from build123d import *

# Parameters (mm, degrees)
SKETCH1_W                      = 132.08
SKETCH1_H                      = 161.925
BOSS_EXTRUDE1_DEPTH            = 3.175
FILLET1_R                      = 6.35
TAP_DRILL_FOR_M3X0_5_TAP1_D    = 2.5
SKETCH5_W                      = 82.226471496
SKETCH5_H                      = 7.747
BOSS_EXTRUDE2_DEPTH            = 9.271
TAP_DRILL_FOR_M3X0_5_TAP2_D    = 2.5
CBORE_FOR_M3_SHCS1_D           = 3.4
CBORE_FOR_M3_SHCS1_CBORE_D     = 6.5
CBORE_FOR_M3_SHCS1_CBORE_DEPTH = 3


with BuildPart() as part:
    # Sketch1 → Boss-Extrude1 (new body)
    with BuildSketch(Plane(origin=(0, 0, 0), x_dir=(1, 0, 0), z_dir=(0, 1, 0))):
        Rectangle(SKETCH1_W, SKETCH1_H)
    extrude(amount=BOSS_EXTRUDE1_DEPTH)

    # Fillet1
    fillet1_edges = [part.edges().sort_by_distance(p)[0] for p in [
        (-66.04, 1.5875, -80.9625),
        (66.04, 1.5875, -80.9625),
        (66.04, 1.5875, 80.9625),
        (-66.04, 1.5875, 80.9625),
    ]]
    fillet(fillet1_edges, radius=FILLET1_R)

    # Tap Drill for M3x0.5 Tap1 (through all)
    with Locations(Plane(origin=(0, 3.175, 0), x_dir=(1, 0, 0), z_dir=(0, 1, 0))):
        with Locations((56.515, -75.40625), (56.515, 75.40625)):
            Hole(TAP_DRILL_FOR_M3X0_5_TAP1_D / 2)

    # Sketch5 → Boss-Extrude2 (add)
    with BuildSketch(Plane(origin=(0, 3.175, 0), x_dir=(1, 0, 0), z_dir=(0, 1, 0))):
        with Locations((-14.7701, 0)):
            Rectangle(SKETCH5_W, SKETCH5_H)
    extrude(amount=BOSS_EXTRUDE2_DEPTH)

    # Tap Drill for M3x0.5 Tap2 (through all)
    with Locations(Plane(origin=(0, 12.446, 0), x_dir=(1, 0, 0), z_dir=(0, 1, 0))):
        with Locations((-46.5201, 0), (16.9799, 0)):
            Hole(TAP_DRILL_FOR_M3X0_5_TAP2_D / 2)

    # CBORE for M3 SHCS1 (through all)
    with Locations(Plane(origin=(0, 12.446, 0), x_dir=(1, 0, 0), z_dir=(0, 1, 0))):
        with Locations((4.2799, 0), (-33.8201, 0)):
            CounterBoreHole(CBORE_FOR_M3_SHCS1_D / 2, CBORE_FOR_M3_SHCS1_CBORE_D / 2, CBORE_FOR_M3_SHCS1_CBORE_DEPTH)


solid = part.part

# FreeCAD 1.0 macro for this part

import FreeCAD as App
import Part
import Sketcher
from FreeCAD import Vector
Q = App.Units.Quantity


def edges_at(feature, points):
    """Names of the edges that pass closest to the given points."""
    edges = feature.Shape.Edges
    near = lambda p: min(range(len(edges)), key=lambda i: edges[i].distToShape(Part.Vertex(*p))[0])
    return sorted({f"Edge{near(p) + 1}" for p in points})


def add_polygon(sketch, points):
    """Adds a closed chain of lines whose ends are joined by coincident constraints."""
    first, n = sketch.GeometryCount, len(points)
    for a, b in zip(points, points[1:] + points[:1]):
        sketch.addGeometry(Part.LineSegment(App.Vector(*a, 0), App.Vector(*b, 0)), False)
    for i in range(n):
        sketch.addConstraint(Sketcher.Constraint("Coincident", first + i, 2, first + (i + 1) % n, 1))

doc = App.newDocument("Part")
body = doc.addObject("PartDesign::Body", "Body")

# Sketch on XZ plane
sketch1 = body.newObject("Sketcher::SketchObject", "Sketch")
sketch1.AttachmentSupport = (doc.getObject("XZ_Plane"), [""])
sketch1.MapMode = "FlatFace"
add_polygon(sketch1, [(-66, -81), (-66, 81), (66, 81), (66, -81)])  # lines 0-3
sketch1.addConstraint([
    Sketcher.Constraint("Vertical", 0),
    Sketcher.Constraint("Horizontal", 1),
    Sketcher.Constraint("Vertical", 2),
    Sketcher.Constraint("Horizontal", 3),
    Sketcher.Constraint("Symmetric", 0, 2, 2, 2, -1, 1),
    Sketcher.Constraint("DistanceX", 1, 1, 1, 2, Q("5.2 in")),
    Sketcher.Constraint("DistanceY", 0, 1, 0, 2, Q("6.375 in")),
])
pad1 = body.newObject("PartDesign::Pad", "Pad")
pad1.Profile = sketch1
pad1.Length = Q("0.125 in")
pad1.Reversed = True
doc.recompute()

fillet = body.newObject("PartDesign::Fillet", "Fillet")
fillet.Base = (pad1, edges_at(pad1, [
    (-66.04, 1.587, -80.963),
    (66.04, 1.587, -80.963),
    (66.04, 1.587, 80.963),
    (-66.04, 1.587, 80.963),
]))
fillet.Radius = Q("0.25 in")

# Sketch on XZ plane
sketch2 = body.newObject("Sketcher::SketchObject", "Sketch001")
sketch2.AttachmentSupport = (doc.getObject("XZ_Plane"), [""])
sketch2.MapMode = "FlatFace"
sketch2.AttachmentOffset = App.Placement(Vector(0, 0, -0.125 * 25.4), App.Rotation())
sketch2.addGeometry([
    Part.Circle(Vector(56.5, 75.4, 0), Vector(0, 0, 1), 1.2),
    Part.Circle(Vector(56.5, -75.4, 0), Vector(0, 0, 1), 1.2),
], False)
sketch2.addConstraint([
    Sketcher.Constraint("Equal", 0, 1),
    Sketcher.Constraint("Symmetric", 0, 3, 1, 3, -1),
    Sketcher.Constraint("Diameter", 0, 2.5),
    Sketcher.Constraint("DistanceX", -1, 1, 0, 3, Q("2.225 in")),
    Sketcher.Constraint("DistanceY", -1, 1, 0, 3, Q("2.96875 in")),
])
doc.recompute()
hole = body.newObject("PartDesign::Hole", "Hole")
hole.Profile = sketch2
hole.ThreadType = "None"
hole.Diameter = 2.5
hole.DepthType = "ThroughAll"
hole.Reversed = True

# Sketch on XZ plane
sketch3 = body.newObject("Sketcher::SketchObject", "Sketch002")
sketch3.AttachmentSupport = (doc.getObject("XZ_Plane"), [""])
sketch3.MapMode = "FlatFace"
sketch3.AttachmentOffset = App.Placement(Vector(0, 0, -0.125 * 25.4), App.Rotation())
add_polygon(sketch3, [(-56, -4), (-56, 4), (26, 4), (26, -4)])  # lines 0-3
sketch3.addConstraint([
    Sketcher.Constraint("Vertical", 0),
    Sketcher.Constraint("Horizontal", 1),
    Sketcher.Constraint("Vertical", 2),
    Sketcher.Constraint("Horizontal", 3),
    Sketcher.Constraint("DistanceY", 0, 1, 0, 2, Q("0.305 in")),
    Sketcher.Constraint("DistanceY", -1, 1, 0, 2, Q("0.1525 in")),
    Sketcher.Constraint("DistanceX", 1, 1, 1, 2, 82.226471),
    Sketcher.Constraint("DistanceX", 0, 2, -1, 1, 55.883336),
])
pad2 = body.newObject("PartDesign::Pad", "Pad001")
pad2.Profile = sketch3
pad2.Length = Q("0.365 in")
pad2.Reversed = True

# Sketch on XZ plane
sketch4 = body.newObject("Sketcher::SketchObject", "Sketch003")
sketch4.AttachmentSupport = (doc.getObject("XZ_Plane"), [""])
sketch4.MapMode = "FlatFace"
sketch4.AttachmentOffset = App.Placement(Vector(0, 0, -0.49 * 25.4), App.Rotation())
sketch4.addGeometry([
    Part.Circle(Vector(-46.5, 0, 0), Vector(0, 0, 1), 1.2),
    Part.Circle(Vector(17, 0, 0), Vector(0, 0, 1), 1.2),
], False)
sketch4.addConstraint([
    Sketcher.Constraint("Equal", 0, 1),
    Sketcher.Constraint("PointOnObject", 0, 3, -1),
    Sketcher.Constraint("PointOnObject", 1, 3, -1),
    Sketcher.Constraint("DistanceX", 0, 3, 1, 3, Q("2.5 in")),
    Sketcher.Constraint("Diameter", 0, 2.5),
    Sketcher.Constraint("DistanceX", 0, 3, -1, 1, Q("1.8315 in")),
])
doc.recompute()
hole2 = body.newObject("PartDesign::Hole", "Hole001")
hole2.Profile = sketch4
hole2.ThreadType = "None"
hole2.Diameter = 2.5
hole2.DepthType = "ThroughAll"
hole2.Reversed = True

# Sketch on XZ plane
sketch5 = body.newObject("Sketcher::SketchObject", "Sketch004")
sketch5.AttachmentSupport = (doc.getObject("XZ_Plane"), [""])
sketch5.MapMode = "FlatFace"
sketch5.AttachmentOffset = App.Placement(Vector(0, 0, -0.49 * 25.4), App.Rotation())
sketch5.addGeometry([
    Part.Circle(Vector(4.3, 0, 0), Vector(0, 0, 1), 1.7),
    Part.Circle(Vector(-33.8, 0, 0), Vector(0, 0, 1), 1.7),
], False)
sketch5.addConstraint([
    Sketcher.Constraint("Equal", 0, 1),
    Sketcher.Constraint("PointOnObject", 0, 3, -1),
    Sketcher.Constraint("PointOnObject", 1, 3, -1),
    Sketcher.Constraint("DistanceX", 1, 3, 0, 3, Q("1.5 in")),
    Sketcher.Constraint("Diameter", 0, 3.4),
    Sketcher.Constraint("DistanceX", -1, 1, 0, 3, Q("0.1685 in")),
])
doc.recompute()
hole3 = body.newObject("PartDesign::Hole", "Hole002")
hole3.Profile = sketch5
hole3.ThreadType = "None"
hole3.Diameter = 3.4
hole3.DepthType = "ThroughAll"
hole3.HoleCutType = "Counterbore"
hole3.HoleCutDiameter = 6.5
hole3.HoleCutDepth = 3
hole3.Reversed = True

doc.recompute()
